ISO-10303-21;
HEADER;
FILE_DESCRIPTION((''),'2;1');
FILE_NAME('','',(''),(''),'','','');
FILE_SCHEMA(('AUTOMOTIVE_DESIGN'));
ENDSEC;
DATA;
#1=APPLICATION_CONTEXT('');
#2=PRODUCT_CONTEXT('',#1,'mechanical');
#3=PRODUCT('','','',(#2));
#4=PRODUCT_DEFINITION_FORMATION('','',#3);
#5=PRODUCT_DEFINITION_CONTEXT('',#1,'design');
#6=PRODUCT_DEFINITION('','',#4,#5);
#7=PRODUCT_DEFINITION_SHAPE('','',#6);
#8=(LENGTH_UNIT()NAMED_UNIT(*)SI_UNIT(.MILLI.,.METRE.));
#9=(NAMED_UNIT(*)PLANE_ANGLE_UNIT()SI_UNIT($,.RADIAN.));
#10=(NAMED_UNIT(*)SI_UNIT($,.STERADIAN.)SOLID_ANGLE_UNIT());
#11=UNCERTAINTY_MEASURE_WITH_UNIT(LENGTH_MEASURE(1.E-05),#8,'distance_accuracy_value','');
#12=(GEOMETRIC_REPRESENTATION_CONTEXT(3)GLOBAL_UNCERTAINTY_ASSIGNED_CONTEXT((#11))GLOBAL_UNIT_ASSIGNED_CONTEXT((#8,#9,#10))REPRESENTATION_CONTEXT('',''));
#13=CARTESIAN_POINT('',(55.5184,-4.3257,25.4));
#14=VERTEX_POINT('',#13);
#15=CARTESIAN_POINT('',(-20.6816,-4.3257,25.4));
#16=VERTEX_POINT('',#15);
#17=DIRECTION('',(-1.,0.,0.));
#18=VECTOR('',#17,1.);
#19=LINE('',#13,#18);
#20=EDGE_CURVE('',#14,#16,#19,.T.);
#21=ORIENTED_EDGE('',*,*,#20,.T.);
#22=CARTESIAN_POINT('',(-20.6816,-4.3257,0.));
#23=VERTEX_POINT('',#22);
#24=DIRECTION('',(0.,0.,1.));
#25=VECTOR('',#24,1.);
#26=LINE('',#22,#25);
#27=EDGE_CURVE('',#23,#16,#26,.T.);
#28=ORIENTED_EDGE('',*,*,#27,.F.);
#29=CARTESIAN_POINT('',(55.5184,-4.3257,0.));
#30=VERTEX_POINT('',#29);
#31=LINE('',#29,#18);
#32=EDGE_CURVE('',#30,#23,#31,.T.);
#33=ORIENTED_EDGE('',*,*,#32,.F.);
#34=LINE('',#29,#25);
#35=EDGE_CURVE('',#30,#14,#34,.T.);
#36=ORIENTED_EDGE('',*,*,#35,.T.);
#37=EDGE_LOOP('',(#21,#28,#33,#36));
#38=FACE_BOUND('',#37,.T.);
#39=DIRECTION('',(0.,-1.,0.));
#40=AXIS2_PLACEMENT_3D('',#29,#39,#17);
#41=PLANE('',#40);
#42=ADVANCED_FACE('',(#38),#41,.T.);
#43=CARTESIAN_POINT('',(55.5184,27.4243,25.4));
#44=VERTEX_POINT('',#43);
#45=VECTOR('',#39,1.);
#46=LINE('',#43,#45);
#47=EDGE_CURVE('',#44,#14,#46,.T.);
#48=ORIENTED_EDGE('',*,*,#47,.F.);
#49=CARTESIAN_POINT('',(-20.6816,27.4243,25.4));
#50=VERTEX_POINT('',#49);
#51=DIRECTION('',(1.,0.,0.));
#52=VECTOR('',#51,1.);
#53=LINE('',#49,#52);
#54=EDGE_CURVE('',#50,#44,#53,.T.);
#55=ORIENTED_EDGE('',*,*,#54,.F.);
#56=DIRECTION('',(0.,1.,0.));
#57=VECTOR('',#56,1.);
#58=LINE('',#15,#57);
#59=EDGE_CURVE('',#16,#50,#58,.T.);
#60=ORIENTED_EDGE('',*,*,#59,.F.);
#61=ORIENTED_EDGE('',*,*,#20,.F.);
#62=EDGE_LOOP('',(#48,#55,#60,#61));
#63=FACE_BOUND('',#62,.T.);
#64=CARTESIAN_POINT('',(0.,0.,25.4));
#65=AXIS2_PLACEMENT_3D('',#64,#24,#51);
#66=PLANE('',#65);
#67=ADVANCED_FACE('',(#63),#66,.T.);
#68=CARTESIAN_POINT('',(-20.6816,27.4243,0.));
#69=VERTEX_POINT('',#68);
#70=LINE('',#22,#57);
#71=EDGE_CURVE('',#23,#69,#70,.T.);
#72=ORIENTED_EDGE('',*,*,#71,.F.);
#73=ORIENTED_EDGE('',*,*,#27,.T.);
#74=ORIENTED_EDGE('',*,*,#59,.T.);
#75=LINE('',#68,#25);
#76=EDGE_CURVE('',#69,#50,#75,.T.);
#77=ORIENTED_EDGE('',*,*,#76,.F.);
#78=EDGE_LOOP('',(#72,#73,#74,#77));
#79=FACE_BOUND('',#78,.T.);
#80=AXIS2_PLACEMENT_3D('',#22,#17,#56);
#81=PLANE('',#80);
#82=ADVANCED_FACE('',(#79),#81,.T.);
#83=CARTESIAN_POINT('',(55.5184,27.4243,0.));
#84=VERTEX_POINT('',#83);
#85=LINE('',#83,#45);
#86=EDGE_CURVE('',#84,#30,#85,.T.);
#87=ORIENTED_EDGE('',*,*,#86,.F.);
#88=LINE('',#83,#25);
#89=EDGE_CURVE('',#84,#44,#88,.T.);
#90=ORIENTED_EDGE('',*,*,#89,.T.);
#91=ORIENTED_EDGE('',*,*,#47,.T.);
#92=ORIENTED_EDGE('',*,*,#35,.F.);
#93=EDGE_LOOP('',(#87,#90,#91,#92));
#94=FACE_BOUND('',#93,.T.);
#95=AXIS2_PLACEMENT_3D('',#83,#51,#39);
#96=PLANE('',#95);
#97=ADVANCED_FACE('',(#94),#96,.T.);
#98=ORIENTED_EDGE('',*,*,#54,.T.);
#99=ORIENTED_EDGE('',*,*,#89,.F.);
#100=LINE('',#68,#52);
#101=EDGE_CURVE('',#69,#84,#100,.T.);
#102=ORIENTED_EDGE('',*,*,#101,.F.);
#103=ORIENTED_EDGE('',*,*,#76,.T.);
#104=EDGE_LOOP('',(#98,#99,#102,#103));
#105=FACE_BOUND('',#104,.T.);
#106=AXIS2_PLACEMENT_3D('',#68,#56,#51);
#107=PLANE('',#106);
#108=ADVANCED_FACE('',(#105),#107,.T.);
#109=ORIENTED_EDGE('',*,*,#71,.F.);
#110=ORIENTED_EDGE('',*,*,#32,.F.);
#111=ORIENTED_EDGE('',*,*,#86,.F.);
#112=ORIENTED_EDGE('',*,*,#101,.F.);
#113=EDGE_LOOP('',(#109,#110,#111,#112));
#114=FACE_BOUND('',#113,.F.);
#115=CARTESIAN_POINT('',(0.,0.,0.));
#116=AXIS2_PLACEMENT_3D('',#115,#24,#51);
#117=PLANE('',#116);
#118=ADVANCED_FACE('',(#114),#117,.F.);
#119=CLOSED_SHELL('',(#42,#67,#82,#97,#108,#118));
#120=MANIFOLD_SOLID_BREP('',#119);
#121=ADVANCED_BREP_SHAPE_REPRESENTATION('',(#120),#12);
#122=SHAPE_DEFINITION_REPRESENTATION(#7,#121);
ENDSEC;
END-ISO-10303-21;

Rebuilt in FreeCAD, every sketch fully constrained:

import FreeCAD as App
import Part
import Sketcher

V = App.Vector
Q = App.Units.Quantity

doc = App.newDocument("Part")
body = doc.addObject("PartDesign::Body", "Body")

# Sketch on XY plane
sketch1 = doc.addObject("Sketcher::SketchObject", "Sketch")
body.addObject(sketch1)
sketch1.AttachmentSupport = (doc.XY_Plane, [""])
sketch1.MapMode = "FlatFace"
sketch1.addGeometry([
    Part.LineSegment(V(56, 27, 0), V(-21, 27, 0)),
    Part.LineSegment(V(-21, 27, 0), V(-21, -4, 0)),
    Part.LineSegment(V(-21, -4, 0), V(56, -4, 0)),
    Part.LineSegment(V(56, -4, 0), V(56, 27, 0)),
], False)
sketch1.addConstraint([
    Sketcher.Constraint("Coincident", 0, 2, 1, 1),
    Sketcher.Constraint("Coincident", 1, 2, 2, 1),
    Sketcher.Constraint("Coincident", 2, 2, 3, 1),
    Sketcher.Constraint("Coincident", 3, 2, 0, 1),
    Sketcher.Constraint("Horizontal", 0),
    Sketcher.Constraint("Vertical", 1),
    Sketcher.Constraint("Horizontal", 2),
    Sketcher.Constraint("Vertical", 3),
    Sketcher.Constraint("DistanceX", 0, 2, 0, 1, Q("3 in")),
    Sketcher.Constraint("DistanceY", 1, 2, 1, 1, Q("1.25 in")),
    Sketcher.Constraint("DistanceY", -1, 1, 0, 2, Q("1.0797 in")),
    Sketcher.Constraint("DistanceX", 0, 2, -1, 1, 20.6816),
])
pad1 = doc.addObject("PartDesign::Pad", "Pad")
body.addObject(pad1)
pad1.Profile = sketch1
pad1.Length = Q("1 in")

doc.recompute()
